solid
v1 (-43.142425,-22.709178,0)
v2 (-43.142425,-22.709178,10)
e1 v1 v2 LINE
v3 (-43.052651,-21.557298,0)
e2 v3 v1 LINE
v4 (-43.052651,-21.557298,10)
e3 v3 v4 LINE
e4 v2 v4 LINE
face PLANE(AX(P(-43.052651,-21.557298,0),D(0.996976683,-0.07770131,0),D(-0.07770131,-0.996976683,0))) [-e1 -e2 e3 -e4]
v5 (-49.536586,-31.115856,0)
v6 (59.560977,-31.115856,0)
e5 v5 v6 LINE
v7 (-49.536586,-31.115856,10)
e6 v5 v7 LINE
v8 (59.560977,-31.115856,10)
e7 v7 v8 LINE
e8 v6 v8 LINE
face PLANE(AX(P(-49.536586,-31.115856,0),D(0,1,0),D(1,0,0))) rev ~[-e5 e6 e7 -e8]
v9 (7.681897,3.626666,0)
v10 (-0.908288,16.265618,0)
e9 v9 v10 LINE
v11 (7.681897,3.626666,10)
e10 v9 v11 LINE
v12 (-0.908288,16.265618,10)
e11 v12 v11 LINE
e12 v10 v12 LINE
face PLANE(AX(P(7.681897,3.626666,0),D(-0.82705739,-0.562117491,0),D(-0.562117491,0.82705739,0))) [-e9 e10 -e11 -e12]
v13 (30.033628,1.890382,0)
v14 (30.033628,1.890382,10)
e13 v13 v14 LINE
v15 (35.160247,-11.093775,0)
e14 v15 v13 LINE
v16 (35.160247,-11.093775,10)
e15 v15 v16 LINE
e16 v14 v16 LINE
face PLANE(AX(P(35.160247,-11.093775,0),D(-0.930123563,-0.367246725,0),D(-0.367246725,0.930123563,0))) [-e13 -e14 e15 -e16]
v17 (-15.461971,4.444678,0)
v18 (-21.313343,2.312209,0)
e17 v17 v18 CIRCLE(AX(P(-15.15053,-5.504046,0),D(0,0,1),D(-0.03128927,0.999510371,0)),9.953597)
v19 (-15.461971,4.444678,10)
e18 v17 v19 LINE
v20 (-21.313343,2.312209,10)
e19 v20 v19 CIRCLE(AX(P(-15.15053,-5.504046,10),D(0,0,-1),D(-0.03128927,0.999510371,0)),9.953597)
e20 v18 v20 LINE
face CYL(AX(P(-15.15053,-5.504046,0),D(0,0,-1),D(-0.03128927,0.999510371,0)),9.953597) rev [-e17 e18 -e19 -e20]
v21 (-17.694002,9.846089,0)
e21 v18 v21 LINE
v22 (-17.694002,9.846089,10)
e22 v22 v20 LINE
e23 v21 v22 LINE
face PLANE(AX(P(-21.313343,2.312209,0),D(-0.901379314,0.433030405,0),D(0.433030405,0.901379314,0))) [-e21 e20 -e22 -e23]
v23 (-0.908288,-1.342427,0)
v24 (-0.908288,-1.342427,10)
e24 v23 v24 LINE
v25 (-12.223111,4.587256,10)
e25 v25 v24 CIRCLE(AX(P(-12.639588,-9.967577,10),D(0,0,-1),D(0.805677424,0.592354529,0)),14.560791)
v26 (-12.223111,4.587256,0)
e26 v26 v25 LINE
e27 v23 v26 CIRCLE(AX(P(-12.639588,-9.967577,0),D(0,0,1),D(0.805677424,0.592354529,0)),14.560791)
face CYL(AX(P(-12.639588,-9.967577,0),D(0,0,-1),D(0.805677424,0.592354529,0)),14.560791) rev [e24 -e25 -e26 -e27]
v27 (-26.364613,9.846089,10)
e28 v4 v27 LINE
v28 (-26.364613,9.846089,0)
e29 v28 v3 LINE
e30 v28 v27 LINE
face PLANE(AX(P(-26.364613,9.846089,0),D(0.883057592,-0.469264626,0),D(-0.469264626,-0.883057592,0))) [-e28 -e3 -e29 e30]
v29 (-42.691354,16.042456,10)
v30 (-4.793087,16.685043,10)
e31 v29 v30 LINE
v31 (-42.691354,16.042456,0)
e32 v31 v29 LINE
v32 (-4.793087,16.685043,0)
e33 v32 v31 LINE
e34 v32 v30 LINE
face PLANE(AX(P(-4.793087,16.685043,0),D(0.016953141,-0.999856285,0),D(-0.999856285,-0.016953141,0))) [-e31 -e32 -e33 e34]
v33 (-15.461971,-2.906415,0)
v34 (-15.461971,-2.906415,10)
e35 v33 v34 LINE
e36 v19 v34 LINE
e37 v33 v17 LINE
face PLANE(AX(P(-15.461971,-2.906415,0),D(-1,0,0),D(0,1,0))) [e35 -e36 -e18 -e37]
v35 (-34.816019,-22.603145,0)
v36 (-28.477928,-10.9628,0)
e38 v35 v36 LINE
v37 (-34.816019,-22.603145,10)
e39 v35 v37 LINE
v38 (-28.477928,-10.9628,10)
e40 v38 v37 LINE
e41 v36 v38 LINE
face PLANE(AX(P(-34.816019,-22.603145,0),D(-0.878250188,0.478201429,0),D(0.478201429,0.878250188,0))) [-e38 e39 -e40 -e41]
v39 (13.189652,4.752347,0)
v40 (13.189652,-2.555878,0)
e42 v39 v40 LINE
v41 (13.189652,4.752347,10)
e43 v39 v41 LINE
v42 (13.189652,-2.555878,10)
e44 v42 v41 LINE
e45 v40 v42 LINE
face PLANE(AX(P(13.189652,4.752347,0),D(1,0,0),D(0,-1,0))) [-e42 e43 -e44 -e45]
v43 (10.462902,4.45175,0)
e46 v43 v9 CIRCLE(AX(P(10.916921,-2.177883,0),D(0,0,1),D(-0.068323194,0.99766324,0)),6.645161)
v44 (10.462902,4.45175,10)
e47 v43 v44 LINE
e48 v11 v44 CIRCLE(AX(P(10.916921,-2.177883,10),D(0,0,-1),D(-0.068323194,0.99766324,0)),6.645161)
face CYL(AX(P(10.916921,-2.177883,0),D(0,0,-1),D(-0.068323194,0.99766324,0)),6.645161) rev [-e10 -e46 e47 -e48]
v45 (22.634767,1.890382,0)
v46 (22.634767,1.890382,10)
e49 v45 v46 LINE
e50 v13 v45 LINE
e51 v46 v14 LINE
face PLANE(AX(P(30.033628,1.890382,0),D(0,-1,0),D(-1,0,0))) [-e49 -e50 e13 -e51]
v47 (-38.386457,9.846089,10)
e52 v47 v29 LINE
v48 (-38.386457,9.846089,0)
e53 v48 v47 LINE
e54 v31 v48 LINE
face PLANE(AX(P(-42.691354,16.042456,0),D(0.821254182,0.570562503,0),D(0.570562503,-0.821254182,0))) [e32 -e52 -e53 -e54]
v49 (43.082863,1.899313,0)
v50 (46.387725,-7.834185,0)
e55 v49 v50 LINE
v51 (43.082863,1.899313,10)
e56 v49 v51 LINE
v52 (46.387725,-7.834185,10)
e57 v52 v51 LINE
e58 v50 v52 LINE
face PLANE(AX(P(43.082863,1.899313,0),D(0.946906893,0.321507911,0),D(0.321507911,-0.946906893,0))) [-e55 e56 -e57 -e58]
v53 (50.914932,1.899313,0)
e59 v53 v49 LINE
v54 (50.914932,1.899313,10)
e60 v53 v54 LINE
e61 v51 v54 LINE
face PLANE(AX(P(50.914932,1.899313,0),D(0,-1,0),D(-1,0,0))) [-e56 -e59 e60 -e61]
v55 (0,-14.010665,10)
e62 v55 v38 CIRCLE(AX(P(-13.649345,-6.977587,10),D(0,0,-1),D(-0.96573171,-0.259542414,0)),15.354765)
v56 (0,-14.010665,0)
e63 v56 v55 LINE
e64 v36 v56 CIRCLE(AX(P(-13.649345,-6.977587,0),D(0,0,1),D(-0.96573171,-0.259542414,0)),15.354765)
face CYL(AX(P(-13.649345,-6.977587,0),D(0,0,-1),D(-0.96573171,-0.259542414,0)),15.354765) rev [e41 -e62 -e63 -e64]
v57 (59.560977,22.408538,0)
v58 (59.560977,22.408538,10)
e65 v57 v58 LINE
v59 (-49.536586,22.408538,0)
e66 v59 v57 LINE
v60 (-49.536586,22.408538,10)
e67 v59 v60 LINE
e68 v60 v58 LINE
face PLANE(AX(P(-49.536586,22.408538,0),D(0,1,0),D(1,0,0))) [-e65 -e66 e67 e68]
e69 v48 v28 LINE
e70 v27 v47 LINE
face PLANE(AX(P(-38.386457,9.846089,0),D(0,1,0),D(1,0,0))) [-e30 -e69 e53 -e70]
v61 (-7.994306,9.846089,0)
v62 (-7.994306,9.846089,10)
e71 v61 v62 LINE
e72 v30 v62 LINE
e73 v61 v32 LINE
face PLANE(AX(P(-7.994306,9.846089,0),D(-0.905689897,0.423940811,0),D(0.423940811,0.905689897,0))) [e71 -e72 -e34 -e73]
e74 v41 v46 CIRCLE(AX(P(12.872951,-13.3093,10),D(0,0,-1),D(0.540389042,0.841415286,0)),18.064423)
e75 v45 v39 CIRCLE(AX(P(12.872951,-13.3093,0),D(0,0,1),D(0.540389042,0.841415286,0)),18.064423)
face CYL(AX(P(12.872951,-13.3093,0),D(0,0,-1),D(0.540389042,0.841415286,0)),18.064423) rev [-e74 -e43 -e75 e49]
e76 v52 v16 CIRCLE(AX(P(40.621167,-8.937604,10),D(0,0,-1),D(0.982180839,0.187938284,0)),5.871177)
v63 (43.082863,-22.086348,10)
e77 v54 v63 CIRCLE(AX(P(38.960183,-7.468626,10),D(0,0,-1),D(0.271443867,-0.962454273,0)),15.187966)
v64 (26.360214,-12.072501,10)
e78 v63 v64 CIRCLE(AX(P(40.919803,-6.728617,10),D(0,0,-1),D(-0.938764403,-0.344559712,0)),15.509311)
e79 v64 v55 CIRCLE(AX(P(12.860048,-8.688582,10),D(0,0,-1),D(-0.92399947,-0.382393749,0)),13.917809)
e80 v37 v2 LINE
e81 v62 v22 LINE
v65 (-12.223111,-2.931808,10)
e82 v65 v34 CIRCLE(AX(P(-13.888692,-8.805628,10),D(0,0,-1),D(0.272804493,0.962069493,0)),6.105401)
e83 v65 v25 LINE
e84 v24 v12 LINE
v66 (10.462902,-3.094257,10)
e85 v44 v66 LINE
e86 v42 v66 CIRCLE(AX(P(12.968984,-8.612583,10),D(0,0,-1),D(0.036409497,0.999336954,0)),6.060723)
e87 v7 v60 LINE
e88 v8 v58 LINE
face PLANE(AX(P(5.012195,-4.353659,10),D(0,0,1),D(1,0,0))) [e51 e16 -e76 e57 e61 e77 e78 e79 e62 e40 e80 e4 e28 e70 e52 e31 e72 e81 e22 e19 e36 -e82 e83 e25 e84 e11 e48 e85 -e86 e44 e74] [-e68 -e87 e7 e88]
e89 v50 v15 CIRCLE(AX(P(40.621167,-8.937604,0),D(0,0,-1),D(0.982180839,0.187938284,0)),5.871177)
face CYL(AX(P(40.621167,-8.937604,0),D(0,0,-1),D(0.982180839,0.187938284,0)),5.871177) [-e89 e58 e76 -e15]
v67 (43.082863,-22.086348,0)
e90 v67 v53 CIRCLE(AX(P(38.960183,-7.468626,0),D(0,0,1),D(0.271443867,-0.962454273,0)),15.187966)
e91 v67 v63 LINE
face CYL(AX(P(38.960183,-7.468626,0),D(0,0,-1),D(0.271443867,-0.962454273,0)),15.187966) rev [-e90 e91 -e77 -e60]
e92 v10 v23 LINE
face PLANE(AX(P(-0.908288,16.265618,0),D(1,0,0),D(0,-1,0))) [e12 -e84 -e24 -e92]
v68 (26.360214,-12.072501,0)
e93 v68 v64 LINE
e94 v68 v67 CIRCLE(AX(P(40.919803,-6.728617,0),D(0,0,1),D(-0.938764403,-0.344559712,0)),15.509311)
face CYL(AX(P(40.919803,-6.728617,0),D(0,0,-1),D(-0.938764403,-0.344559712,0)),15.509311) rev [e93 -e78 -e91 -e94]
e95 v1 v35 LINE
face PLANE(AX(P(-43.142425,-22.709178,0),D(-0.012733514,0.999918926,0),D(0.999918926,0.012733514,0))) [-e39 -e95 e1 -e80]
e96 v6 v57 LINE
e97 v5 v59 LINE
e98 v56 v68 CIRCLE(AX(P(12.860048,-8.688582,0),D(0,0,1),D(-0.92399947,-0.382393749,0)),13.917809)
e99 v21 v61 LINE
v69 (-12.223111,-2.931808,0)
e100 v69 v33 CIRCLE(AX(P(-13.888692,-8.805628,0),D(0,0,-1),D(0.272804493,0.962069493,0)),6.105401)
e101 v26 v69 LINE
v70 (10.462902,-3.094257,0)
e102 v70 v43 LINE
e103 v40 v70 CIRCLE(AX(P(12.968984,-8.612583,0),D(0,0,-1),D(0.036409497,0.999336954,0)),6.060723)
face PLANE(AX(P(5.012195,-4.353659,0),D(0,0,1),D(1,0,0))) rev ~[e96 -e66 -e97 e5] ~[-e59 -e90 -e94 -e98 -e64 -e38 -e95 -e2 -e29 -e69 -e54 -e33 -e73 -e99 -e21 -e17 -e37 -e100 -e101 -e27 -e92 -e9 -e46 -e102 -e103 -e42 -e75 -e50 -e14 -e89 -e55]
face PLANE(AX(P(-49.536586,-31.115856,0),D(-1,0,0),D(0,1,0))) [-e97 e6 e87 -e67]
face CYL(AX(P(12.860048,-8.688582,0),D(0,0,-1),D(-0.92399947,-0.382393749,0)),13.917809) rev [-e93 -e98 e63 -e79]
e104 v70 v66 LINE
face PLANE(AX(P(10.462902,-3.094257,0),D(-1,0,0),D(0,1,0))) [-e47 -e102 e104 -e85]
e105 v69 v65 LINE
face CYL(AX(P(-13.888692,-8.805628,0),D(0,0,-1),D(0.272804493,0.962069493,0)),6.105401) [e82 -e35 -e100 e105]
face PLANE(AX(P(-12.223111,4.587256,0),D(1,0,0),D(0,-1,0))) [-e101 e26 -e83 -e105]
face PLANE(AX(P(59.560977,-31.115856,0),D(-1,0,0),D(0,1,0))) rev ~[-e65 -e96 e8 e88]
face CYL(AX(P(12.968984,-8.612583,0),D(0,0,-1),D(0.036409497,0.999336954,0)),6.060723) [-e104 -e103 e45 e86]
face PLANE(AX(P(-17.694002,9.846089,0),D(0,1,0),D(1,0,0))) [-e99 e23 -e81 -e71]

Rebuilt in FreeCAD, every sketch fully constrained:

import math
import FreeCAD as App
import Part
import Sketcher

doc = App.newDocument("Part")
params = doc.addObject("Spreadsheet::Sheet", "Params")
for row, (alias, value) in enumerate([
    ("pad1_length", "10 mm"),
    ("pocket1_length", "20 mm"),
], start=1):
    params.set(f"A{row}", alias)
    params.set(f"B{row}", "=" + value)
    params.setAlias(f"B{row}", alias)

body = doc.addObject("PartDesign::Body", "Body")

# Sketch on XY plane
sketch1 = doc.addObject("Sketcher::SketchObject", "Sketch")
body.addObject(sketch1)
sketch1.AttachmentSupport = (doc.XY_Plane, [""])
sketch1.MapMode = "FlatFace"
sketch1.addGeometry(Part.LineSegment(App.Vector(-49.536586, 22.408538, 0), App.Vector(-49.536586, -31.115856, 0)), False)
sketch1.addGeometry(Part.LineSegment(App.Vector(-49.536586, -31.115856, 0), App.Vector(59.560977, -31.115856, 0)), False)
sketch1.addGeometry(Part.LineSegment(App.Vector(59.560977, -31.115856, 0), App.Vector(59.560977, 22.408538, 0)), False)
sketch1.addGeometry(Part.LineSegment(App.Vector(59.560977, 22.408538, 0), App.Vector(-49.536586, 22.408538, 0)), False)
sketch1.addConstraint(Sketcher.Constraint("Coincident", 0, 2, 1, 1))
sketch1.addConstraint(Sketcher.Constraint("Coincident", 1, 2, 2, 1))
sketch1.addConstraint(Sketcher.Constraint("Coincident", 2, 2, 3, 1))
sketch1.addConstraint(Sketcher.Constraint("Coincident", 3, 2, 0, 1))
sketch1.addConstraint(Sketcher.Constraint("Vertical", 0))
sketch1.addConstraint(Sketcher.Constraint("Horizontal", 1))
sketch1.addConstraint(Sketcher.Constraint("Vertical", 2))
sketch1.addConstraint(Sketcher.Constraint("Horizontal", 3))
sketch1.addConstraint(Sketcher.Constraint("DistanceX", 1, 1, 1, 2, 109.097563))
sketch1.addConstraint(Sketcher.Constraint("DistanceY", 0, 2, 0, 1, 53.524394))
sketch1.addConstraint(Sketcher.Constraint("DistanceY", -1, 1, 2, 2, 22.408538))
sketch1.addConstraint(Sketcher.Constraint("DistanceX", 0, 2, -1, 1, 49.536586))
pad1 = doc.addObject("PartDesign::Pad", "Pad")
body.addObject(pad1)
pad1.Profile = sketch1
pad1.setExpression("Length", "Params.pad1_length")

# Sketch on XY plane
sketch2 = doc.addObject("Sketcher::SketchObject", "Sketch001")
body.addObject(sketch2)
sketch2.AttachmentSupport = (doc.XY_Plane, [""])
sketch2.MapMode = "FlatFace"
sketch2.addGeometry(Part.LineSegment(App.Vector(-26.364613, 9.846089, 0), App.Vector(-43.052651, -21.557298, 0)), False)
sketch2.addGeometry(Part.LineSegment(App.Vector(-43.052651, -21.557298, 0), App.Vector(-43.142425, -22.709178, 0)), False)
sketch2.addGeometry(Part.LineSegment(App.Vector(-43.142425, -22.709178, 0), App.Vector(-34.816019, -22.603145, 0)), False)
sketch2.addGeometry(Part.LineSegment(App.Vector(-34.816019, -22.603145, 0), App.Vector(-28.477928, -10.9628, 0)), False)
sketch2.addGeometry(Part.ArcOfCircle(Part.Circle(App.Vector(-13.649345, -6.977587, 0), App.Vector(0, 0, 1), 15.354765), math.radians(-164.957088), math.radians(-27.260626)), False)
sketch2.addGeometry(Part.ArcOfCircle(Part.Circle(App.Vector(12.860048, -8.688582, 0), App.Vector(0, 0, 1), 13.917809), math.radians(-157.517964), math.radians(-14.071698)), False)
sketch2.addGeometry(Part.ArcOfCircle(Part.Circle(App.Vector(40.919803, -6.728617, 0), App.Vector(0, 0, 1), 15.509311), math.radians(-159.845079), math.radians(-81.982909)), False)
sketch2.addGeometry(Part.ArcOfCircle(Part.Circle(App.Vector(38.960183, -7.468626, 0), App.Vector(0, 0, 1), 15.187966), math.radians(-74.249797), math.radians(38.082835)), False)
sketch2.addGeometry(Part.LineSegment(App.Vector(50.914932, 1.899313, 0), App.Vector(43.082863, 1.899313, 0)), False)
sketch2.addGeometry(Part.LineSegment(App.Vector(43.082863, 1.899313, 0), App.Vector(46.387725, -7.834185, 0)), False)
sketch2.addGeometry(Part.ArcOfCircle(Part.Circle(App.Vector(40.621167, -8.937604, 0), App.Vector(0, 0, 1), 5.871177), math.radians(-158.45408), math.radians(10.832489)), False)
sketch2.addGeometry(Part.LineSegment(App.Vector(35.160247, -11.093775, 0), App.Vector(30.033628, 1.890382, 0)), False)
sketch2.addGeometry(Part.LineSegment(App.Vector(30.033628, 1.890382, 0), App.Vector(22.634767, 1.890382, 0)), False)
sketch2.addGeometry(Part.ArcOfCircle(Part.Circle(App.Vector(12.872951, -13.3093, 0), App.Vector(0, 0, 1), 18.064423), math.radians(57.289873), math.radians(88.995452)), False)
sketch2.addGeometry(Part.LineSegment(App.Vector(13.189652, 4.752347, 0), App.Vector(13.189652, -2.555878, 0)), False)
sketch2.addGeometry(Part.ArcOfCircle(Part.Circle(App.Vector(12.968984, -8.612583, 0), App.Vector(0, 0, 1), 6.060723), math.radians(114.42461), math.radians(447.913428)), False)
sketch2.addGeometry(Part.LineSegment(App.Vector(10.462902, -3.094257, 0), App.Vector(10.462902, 4.45175, 0)), False)
sketch2.addGeometry(Part.ArcOfCircle(Part.Circle(App.Vector(10.916921, -2.177883, 0), App.Vector(0, 0, 1), 6.645161), math.radians(93.917683), math.radians(119.132041)), False)
sketch2.addGeometry(Part.LineSegment(App.Vector(7.681897, 3.626666, 0), App.Vector(-0.908288, 16.265618, 0)), False)
sketch2.addGeometry(Part.LineSegment(App.Vector(-0.908288, 16.265618, 0), App.Vector(-0.908288, -1.342427, 0)), False)
sketch2.addGeometry(Part.ArcOfCircle(Part.Circle(App.Vector(-12.639588, -9.967577, 0), App.Vector(0, 0, 1), 14.560791), math.radians(36.324271), math.radians(88.360965)), False)
sketch2.addGeometry(Part.LineSegment(App.Vector(-12.223111, 4.587256, 0), App.Vector(-12.223111, -2.931808, 0)), False)
sketch2.addGeometry(Part.ArcOfCircle(Part.Circle(App.Vector(-13.888692, -8.805628, 0), App.Vector(0, 0, 1), 6.105401), math.radians(104.932828), math.radians(434.168781)), False)
sketch2.addGeometry(Part.LineSegment(App.Vector(-15.461971, -2.906415, 0), App.Vector(-15.461971, 4.444678, 0)), False)
sketch2.addGeometry(Part.ArcOfCircle(Part.Circle(App.Vector(-15.15053, -5.504046, 0), App.Vector(0, 0, 1), 9.953597), math.radians(91.793036), math.radians(128.254405)), False)
sketch2.addGeometry(Part.LineSegment(App.Vector(-21.313343, 2.312209, 0), App.Vector(-17.694002, 9.846089, 0)), False)
sketch2.addGeometry(Part.LineSegment(App.Vector(-17.694002, 9.846089, 0), App.Vector(-7.994306, 9.846089, 0)), False)
sketch2.addGeometry(Part.LineSegment(App.Vector(-7.994306, 9.846089, 0), App.Vector(-4.793087, 16.685043, 0)), False)
sketch2.addGeometry(Part.LineSegment(App.Vector(-4.793087, 16.685043, 0), App.Vector(-42.691354, 16.042456, 0)), False)
sketch2.addGeometry(Part.LineSegment(App.Vector(-42.691354, 16.042456, 0), App.Vector(-38.386457, 9.846089, 0)), False)
sketch2.addGeometry(Part.LineSegment(App.Vector(-38.386457, 9.846089, 0), App.Vector(-26.364613, 9.846089, 0)), False)
sketch2.addConstraint(Sketcher.Constraint("Coincident", 0, 2, 1, 1))
sketch2.addConstraint(Sketcher.Constraint("Coincident", 1, 2, 2, 1))
sketch2.addConstraint(Sketcher.Constraint("Coincident", 2, 2, 3, 1))
sketch2.addConstraint(Sketcher.Constraint("Coincident", 3, 2, 4, 1))
sketch2.addConstraint(Sketcher.Constraint("Coincident", 4, 2, 5, 1))
sketch2.addConstraint(Sketcher.Constraint("Coincident", 5, 2, 6, 1))
sketch2.addConstraint(Sketcher.Constraint("Coincident", 6, 2, 7, 1))
sketch2.addConstraint(Sketcher.Constraint("Coincident", 7, 2, 8, 1))
sketch2.addConstraint(Sketcher.Constraint("Coincident", 8, 2, 9, 1))
sketch2.addConstraint(Sketcher.Constraint("Coincident", 9, 2, 10, 2))
sketch2.addConstraint(Sketcher.Constraint("Tangent", 10, 1, 11, 1))
sketch2.addConstraint(Sketcher.Constraint("Coincident", 11, 2, 12, 1))
sketch2.addConstraint(Sketcher.Constraint("Coincident", 12, 2, 13, 1))
sketch2.addConstraint(Sketcher.Constraint("Coincident", 13, 2, 14, 1))
sketch2.addConstraint(Sketcher.Constraint("Coincident", 14, 2, 15, 2))
sketch2.addConstraint(Sketcher.Constraint("Coincident", 15, 1, 16, 1))
sketch2.addConstraint(Sketcher.Constraint("Coincident", 16, 2, 17, 1))
sketch2.addConstraint(Sketcher.Constraint("Coincident", 17, 2, 18, 1))
sketch2.addConstraint(Sketcher.Constraint("Coincident", 18, 2, 19, 1))
sketch2.addConstraint(Sketcher.Constraint("Coincident", 19, 2, 20, 1))
sketch2.addConstraint(Sketcher.Constraint("Coincident", 20, 2, 21, 1))
sketch2.addConstraint(Sketcher.Constraint("Coincident", 21, 2, 22, 2))
sketch2.addConstraint(Sketcher.Constraint("Coincident", 22, 1, 23, 1))
sketch2.addConstraint(Sketcher.Constraint("Coincident", 23, 2, 24, 1))
sketch2.addConstraint(Sketcher.Constraint("Coincident", 24, 2, 25, 1))
sketch2.addConstraint(Sketcher.Constraint("Coincident", 25, 2, 26, 1))
sketch2.addConstraint(Sketcher.Constraint("Coincident", 26, 2, 27, 1))
sketch2.addConstraint(Sketcher.Constraint("Coincident", 27, 2, 28, 1))
sketch2.addConstraint(Sketcher.Constraint("Coincident", 28, 2, 29, 1))
sketch2.addConstraint(Sketcher.Constraint("Coincident", 29, 2, 30, 1))
sketch2.addConstraint(Sketcher.Constraint("Coincident", 30, 2, 0, 1))
sketch2.addConstraint(Sketcher.Constraint("Horizontal", 8))
sketch2.addConstraint(Sketcher.Constraint("Horizontal", 12))
sketch2.addConstraint(Sketcher.Constraint("Vertical", 14))
sketch2.addConstraint(Sketcher.Constraint("Vertical", 16))
sketch2.addConstraint(Sketcher.Constraint("Vertical", 19))
sketch2.addConstraint(Sketcher.Constraint("Vertical", 21))
sketch2.addConstraint(Sketcher.Constraint("Vertical", 23))
sketch2.addConstraint(Sketcher.Constraint("Horizontal", 26))
sketch2.addConstraint(Sketcher.Constraint("Horizontal", 30))
sketch2.addConstraint(Sketcher.Constraint("PointOnObject", 4, 2, -2))
sketch2.addConstraint(Sketcher.Constraint("Horizontal", 26, 2, 29, 2))
sketch2.addConstraint(Sketcher.Constraint("Vertical", 6, 2, 8, 2))
sketch2.addConstraint(Sketcher.Constraint("Radius", 22, 6.105401))
sketch2.addConstraint(Sketcher.Constraint("Radius", 5, 13.917809))
sketch2.addConstraint(Sketcher.Constraint("Radius", 6, 15.509311))
sketch2.addConstraint(Sketcher.Constraint("Radius", 17, 6.645161))
sketch2.addConstraint(Sketcher.Constraint("Radius", 20, 14.560791))
sketch2.addConstraint(Sketcher.Constraint("Radius", 4, 15.354765))
sketch2.addConstraint(Sketcher.Constraint("Radius", 7, 15.187966))
sketch2.addConstraint(Sketcher.Constraint("Radius", 10, 5.871177))
sketch2.addConstraint(Sketcher.Constraint("Radius", 13, 18.064423))
sketch2.addConstraint(Sketcher.Constraint("Radius", 15, 6.060723))
sketch2.addConstraint(Sketcher.Constraint("Radius", 24, 9.953597))
sketch2.addConstraint(Sketcher.Constraint("DistanceY", 5, 3, 15, 3, 0.075999))
sketch2.addConstraint(Sketcher.Constraint("DistanceY", 0, 2, 13, 3, 8.247998))
sketch2.addConstraint(Sketcher.Constraint("DistanceY", 6, 3, 11, 2, 8.618999))
sketch2.addConstraint(Sketcher.Constraint("Distance", 27, 7.551099))
sketch2.addConstraint(Sketcher.Constraint("DistanceX", 8, 2, 8, 1, 7.832069))
sketch2.addConstraint(Sketcher.Constraint("DistanceX", 12, 2, 12, 1, 7.398861))
sketch2.addConstraint(Sketcher.Constraint("DistanceY", 13, 3, -1, 1, 13.3093))
sketch2.addConstraint(Sketcher.Constraint("DistanceY", 3, 2, -1, 1, 10.9628))
sketch2.addConstraint(Sketcher.Constraint("DistanceY", 5, 2, -1, 1, 12.072501))
sketch2.addConstraint(Sketcher.Constraint("DistanceX", -1, 1, 15, 1, 10.462902))
sketch2.addConstraint(Sketcher.Constraint("DistanceX", 15, 3, 7, 3, 25.991199))
sketch2.addConstraint(Sketcher.Constraint("DistanceY", 15, 3, 17, 3, 6.434699))
sketch2.addConstraint(Sketcher.Constraint("DistanceX", 0, 2, 13, 3, 55.925602))
sketch2.addConstraint(Sketcher.Constraint("DistanceY", 1, 2, 20, 3, 12.741601))
sketch2.addConstraint(Sketcher.Constraint("DistanceY", 2, 2, 24, 3, 17.099099))
sketch2.addConstraint(Sketcher.Constraint("DistanceY", 17, 3, 18, 2, 18.443501))
sketch2.addConstraint(Sketcher.Constraint("DistanceY", 24, 3, 20, 2, 10.091302))
sketch2.addConstraint(Sketcher.Constraint("DistanceX", 27, 2, 18, 2, 3.884799))
sketch2.addConstraint(Sketcher.Constraint("DistanceY", 20, 2, 28, 2, 11.4552))
sketch2.addConstraint(Sketcher.Constraint("Distance", 2, 8.327081))
sketch2.addConstraint(Sketcher.Constraint("Distance", 3, 13.254019))
sketch2.addConstraint(Sketcher.Constraint("Distance", 18, 15.281832))
sketch2.addConstraint(Sketcher.Constraint("Distance", 25, 8.358168))
sketch2.addConstraint(Sketcher.Constraint("DistanceX", 26, 1, 26, 2, 9.699696))
sketch2.addConstraint(Sketcher.Constraint("DistanceX", 30, 1, 30, 2, 12.021844))
sketch2.addConstraint(Sketcher.Constraint("DistanceY", 14, 2, 14, 1, 7.308225))
sketch2.addConstraint(Sketcher.Constraint("DistanceY", 16, 1, 16, 2, 7.546007))
sketch2.addConstraint(Sketcher.Constraint("DistanceY", 19, 2, 19, 1, 17.608045))
sketch2.addConstraint(Sketcher.Constraint("DistanceY", 21, 2, 21, 1, 7.519064))
sketch2.addConstraint(Sketcher.Constraint("DistanceY", 23, 1, 23, 2, 7.351093))
sketch2.addConstraint(Sketcher.Constraint("DistanceY", 5, 3, -1, 1, 8.688582))
sketch2.addConstraint(Sketcher.Constraint("DistanceX", -1, 1, 13, 3, 12.872951))
sketch2.addConstraint(Sketcher.Constraint("DistanceX", -1, 1, 17, 3, 10.916921))
sketch2.addConstraint(Sketcher.Constraint("DistanceX", 20, 3, -1, 1, 12.639588))
sketch2.addConstraint(Sketcher.Constraint("DistanceX", 22, 3, -1, 1, 13.888692))
sketch2.addConstraint(Sketcher.Constraint("DistanceY", 22, 3, -1, 1, 8.805628))
sketch2.addConstraint(Sketcher.Constraint("DistanceX", 24, 3, -1, 1, 15.15053))
sketch2.addConstraint(Sketcher.Constraint("DistanceY", 1, 2, -1, 1, 22.709178))
sketch2.addConstraint(Sketcher.Constraint("DistanceX", 2, 2, -1, 1, 34.816019))
sketch2.addConstraint(Sketcher.Constraint("DistanceY", 6, 2, -1, 1, 22.086348))
sketch2.addConstraint(Sketcher.Constraint("DistanceX", -1, 1, 7, 2, 50.914932))
sketch2.addConstraint(Sketcher.Constraint("DistanceX", -1, 1, 11, 2, 30.033628))
sketch2.addConstraint(Sketcher.Constraint("DistanceY", -1, 1, 24, 2, 2.312209))
sketch2.addConstraint(Sketcher.Constraint("DistanceY", -1, 1, 25, 2, 9.846089))
sketch2.addConstraint(Sketcher.Constraint("DistanceY", 10, 3, 7, 3, 1.468978))
sketch2.addConstraint(Sketcher.Constraint("DistanceX", 5, 3, 10, 3, 27.761119))
sketch2.addConstraint(Sketcher.Constraint("DistanceY", 10, 3, 9, 2, 1.103419))
sketch2.addConstraint(Sketcher.Constraint("DistanceX", 28, 2, 24, 2, 21.378011))
sketch2.addConstraint(Sketcher.Constraint("DistanceX", 29, 2, 3, 2, 9.908529))
pocket1 = doc.addObject("PartDesign::Pocket", "Pocket")
body.addObject(pocket1)
pocket1.Profile = sketch2
pocket1.setExpression("Length", "Params.pocket1_length")
pocket1.Reversed = True

doc.recompute()
